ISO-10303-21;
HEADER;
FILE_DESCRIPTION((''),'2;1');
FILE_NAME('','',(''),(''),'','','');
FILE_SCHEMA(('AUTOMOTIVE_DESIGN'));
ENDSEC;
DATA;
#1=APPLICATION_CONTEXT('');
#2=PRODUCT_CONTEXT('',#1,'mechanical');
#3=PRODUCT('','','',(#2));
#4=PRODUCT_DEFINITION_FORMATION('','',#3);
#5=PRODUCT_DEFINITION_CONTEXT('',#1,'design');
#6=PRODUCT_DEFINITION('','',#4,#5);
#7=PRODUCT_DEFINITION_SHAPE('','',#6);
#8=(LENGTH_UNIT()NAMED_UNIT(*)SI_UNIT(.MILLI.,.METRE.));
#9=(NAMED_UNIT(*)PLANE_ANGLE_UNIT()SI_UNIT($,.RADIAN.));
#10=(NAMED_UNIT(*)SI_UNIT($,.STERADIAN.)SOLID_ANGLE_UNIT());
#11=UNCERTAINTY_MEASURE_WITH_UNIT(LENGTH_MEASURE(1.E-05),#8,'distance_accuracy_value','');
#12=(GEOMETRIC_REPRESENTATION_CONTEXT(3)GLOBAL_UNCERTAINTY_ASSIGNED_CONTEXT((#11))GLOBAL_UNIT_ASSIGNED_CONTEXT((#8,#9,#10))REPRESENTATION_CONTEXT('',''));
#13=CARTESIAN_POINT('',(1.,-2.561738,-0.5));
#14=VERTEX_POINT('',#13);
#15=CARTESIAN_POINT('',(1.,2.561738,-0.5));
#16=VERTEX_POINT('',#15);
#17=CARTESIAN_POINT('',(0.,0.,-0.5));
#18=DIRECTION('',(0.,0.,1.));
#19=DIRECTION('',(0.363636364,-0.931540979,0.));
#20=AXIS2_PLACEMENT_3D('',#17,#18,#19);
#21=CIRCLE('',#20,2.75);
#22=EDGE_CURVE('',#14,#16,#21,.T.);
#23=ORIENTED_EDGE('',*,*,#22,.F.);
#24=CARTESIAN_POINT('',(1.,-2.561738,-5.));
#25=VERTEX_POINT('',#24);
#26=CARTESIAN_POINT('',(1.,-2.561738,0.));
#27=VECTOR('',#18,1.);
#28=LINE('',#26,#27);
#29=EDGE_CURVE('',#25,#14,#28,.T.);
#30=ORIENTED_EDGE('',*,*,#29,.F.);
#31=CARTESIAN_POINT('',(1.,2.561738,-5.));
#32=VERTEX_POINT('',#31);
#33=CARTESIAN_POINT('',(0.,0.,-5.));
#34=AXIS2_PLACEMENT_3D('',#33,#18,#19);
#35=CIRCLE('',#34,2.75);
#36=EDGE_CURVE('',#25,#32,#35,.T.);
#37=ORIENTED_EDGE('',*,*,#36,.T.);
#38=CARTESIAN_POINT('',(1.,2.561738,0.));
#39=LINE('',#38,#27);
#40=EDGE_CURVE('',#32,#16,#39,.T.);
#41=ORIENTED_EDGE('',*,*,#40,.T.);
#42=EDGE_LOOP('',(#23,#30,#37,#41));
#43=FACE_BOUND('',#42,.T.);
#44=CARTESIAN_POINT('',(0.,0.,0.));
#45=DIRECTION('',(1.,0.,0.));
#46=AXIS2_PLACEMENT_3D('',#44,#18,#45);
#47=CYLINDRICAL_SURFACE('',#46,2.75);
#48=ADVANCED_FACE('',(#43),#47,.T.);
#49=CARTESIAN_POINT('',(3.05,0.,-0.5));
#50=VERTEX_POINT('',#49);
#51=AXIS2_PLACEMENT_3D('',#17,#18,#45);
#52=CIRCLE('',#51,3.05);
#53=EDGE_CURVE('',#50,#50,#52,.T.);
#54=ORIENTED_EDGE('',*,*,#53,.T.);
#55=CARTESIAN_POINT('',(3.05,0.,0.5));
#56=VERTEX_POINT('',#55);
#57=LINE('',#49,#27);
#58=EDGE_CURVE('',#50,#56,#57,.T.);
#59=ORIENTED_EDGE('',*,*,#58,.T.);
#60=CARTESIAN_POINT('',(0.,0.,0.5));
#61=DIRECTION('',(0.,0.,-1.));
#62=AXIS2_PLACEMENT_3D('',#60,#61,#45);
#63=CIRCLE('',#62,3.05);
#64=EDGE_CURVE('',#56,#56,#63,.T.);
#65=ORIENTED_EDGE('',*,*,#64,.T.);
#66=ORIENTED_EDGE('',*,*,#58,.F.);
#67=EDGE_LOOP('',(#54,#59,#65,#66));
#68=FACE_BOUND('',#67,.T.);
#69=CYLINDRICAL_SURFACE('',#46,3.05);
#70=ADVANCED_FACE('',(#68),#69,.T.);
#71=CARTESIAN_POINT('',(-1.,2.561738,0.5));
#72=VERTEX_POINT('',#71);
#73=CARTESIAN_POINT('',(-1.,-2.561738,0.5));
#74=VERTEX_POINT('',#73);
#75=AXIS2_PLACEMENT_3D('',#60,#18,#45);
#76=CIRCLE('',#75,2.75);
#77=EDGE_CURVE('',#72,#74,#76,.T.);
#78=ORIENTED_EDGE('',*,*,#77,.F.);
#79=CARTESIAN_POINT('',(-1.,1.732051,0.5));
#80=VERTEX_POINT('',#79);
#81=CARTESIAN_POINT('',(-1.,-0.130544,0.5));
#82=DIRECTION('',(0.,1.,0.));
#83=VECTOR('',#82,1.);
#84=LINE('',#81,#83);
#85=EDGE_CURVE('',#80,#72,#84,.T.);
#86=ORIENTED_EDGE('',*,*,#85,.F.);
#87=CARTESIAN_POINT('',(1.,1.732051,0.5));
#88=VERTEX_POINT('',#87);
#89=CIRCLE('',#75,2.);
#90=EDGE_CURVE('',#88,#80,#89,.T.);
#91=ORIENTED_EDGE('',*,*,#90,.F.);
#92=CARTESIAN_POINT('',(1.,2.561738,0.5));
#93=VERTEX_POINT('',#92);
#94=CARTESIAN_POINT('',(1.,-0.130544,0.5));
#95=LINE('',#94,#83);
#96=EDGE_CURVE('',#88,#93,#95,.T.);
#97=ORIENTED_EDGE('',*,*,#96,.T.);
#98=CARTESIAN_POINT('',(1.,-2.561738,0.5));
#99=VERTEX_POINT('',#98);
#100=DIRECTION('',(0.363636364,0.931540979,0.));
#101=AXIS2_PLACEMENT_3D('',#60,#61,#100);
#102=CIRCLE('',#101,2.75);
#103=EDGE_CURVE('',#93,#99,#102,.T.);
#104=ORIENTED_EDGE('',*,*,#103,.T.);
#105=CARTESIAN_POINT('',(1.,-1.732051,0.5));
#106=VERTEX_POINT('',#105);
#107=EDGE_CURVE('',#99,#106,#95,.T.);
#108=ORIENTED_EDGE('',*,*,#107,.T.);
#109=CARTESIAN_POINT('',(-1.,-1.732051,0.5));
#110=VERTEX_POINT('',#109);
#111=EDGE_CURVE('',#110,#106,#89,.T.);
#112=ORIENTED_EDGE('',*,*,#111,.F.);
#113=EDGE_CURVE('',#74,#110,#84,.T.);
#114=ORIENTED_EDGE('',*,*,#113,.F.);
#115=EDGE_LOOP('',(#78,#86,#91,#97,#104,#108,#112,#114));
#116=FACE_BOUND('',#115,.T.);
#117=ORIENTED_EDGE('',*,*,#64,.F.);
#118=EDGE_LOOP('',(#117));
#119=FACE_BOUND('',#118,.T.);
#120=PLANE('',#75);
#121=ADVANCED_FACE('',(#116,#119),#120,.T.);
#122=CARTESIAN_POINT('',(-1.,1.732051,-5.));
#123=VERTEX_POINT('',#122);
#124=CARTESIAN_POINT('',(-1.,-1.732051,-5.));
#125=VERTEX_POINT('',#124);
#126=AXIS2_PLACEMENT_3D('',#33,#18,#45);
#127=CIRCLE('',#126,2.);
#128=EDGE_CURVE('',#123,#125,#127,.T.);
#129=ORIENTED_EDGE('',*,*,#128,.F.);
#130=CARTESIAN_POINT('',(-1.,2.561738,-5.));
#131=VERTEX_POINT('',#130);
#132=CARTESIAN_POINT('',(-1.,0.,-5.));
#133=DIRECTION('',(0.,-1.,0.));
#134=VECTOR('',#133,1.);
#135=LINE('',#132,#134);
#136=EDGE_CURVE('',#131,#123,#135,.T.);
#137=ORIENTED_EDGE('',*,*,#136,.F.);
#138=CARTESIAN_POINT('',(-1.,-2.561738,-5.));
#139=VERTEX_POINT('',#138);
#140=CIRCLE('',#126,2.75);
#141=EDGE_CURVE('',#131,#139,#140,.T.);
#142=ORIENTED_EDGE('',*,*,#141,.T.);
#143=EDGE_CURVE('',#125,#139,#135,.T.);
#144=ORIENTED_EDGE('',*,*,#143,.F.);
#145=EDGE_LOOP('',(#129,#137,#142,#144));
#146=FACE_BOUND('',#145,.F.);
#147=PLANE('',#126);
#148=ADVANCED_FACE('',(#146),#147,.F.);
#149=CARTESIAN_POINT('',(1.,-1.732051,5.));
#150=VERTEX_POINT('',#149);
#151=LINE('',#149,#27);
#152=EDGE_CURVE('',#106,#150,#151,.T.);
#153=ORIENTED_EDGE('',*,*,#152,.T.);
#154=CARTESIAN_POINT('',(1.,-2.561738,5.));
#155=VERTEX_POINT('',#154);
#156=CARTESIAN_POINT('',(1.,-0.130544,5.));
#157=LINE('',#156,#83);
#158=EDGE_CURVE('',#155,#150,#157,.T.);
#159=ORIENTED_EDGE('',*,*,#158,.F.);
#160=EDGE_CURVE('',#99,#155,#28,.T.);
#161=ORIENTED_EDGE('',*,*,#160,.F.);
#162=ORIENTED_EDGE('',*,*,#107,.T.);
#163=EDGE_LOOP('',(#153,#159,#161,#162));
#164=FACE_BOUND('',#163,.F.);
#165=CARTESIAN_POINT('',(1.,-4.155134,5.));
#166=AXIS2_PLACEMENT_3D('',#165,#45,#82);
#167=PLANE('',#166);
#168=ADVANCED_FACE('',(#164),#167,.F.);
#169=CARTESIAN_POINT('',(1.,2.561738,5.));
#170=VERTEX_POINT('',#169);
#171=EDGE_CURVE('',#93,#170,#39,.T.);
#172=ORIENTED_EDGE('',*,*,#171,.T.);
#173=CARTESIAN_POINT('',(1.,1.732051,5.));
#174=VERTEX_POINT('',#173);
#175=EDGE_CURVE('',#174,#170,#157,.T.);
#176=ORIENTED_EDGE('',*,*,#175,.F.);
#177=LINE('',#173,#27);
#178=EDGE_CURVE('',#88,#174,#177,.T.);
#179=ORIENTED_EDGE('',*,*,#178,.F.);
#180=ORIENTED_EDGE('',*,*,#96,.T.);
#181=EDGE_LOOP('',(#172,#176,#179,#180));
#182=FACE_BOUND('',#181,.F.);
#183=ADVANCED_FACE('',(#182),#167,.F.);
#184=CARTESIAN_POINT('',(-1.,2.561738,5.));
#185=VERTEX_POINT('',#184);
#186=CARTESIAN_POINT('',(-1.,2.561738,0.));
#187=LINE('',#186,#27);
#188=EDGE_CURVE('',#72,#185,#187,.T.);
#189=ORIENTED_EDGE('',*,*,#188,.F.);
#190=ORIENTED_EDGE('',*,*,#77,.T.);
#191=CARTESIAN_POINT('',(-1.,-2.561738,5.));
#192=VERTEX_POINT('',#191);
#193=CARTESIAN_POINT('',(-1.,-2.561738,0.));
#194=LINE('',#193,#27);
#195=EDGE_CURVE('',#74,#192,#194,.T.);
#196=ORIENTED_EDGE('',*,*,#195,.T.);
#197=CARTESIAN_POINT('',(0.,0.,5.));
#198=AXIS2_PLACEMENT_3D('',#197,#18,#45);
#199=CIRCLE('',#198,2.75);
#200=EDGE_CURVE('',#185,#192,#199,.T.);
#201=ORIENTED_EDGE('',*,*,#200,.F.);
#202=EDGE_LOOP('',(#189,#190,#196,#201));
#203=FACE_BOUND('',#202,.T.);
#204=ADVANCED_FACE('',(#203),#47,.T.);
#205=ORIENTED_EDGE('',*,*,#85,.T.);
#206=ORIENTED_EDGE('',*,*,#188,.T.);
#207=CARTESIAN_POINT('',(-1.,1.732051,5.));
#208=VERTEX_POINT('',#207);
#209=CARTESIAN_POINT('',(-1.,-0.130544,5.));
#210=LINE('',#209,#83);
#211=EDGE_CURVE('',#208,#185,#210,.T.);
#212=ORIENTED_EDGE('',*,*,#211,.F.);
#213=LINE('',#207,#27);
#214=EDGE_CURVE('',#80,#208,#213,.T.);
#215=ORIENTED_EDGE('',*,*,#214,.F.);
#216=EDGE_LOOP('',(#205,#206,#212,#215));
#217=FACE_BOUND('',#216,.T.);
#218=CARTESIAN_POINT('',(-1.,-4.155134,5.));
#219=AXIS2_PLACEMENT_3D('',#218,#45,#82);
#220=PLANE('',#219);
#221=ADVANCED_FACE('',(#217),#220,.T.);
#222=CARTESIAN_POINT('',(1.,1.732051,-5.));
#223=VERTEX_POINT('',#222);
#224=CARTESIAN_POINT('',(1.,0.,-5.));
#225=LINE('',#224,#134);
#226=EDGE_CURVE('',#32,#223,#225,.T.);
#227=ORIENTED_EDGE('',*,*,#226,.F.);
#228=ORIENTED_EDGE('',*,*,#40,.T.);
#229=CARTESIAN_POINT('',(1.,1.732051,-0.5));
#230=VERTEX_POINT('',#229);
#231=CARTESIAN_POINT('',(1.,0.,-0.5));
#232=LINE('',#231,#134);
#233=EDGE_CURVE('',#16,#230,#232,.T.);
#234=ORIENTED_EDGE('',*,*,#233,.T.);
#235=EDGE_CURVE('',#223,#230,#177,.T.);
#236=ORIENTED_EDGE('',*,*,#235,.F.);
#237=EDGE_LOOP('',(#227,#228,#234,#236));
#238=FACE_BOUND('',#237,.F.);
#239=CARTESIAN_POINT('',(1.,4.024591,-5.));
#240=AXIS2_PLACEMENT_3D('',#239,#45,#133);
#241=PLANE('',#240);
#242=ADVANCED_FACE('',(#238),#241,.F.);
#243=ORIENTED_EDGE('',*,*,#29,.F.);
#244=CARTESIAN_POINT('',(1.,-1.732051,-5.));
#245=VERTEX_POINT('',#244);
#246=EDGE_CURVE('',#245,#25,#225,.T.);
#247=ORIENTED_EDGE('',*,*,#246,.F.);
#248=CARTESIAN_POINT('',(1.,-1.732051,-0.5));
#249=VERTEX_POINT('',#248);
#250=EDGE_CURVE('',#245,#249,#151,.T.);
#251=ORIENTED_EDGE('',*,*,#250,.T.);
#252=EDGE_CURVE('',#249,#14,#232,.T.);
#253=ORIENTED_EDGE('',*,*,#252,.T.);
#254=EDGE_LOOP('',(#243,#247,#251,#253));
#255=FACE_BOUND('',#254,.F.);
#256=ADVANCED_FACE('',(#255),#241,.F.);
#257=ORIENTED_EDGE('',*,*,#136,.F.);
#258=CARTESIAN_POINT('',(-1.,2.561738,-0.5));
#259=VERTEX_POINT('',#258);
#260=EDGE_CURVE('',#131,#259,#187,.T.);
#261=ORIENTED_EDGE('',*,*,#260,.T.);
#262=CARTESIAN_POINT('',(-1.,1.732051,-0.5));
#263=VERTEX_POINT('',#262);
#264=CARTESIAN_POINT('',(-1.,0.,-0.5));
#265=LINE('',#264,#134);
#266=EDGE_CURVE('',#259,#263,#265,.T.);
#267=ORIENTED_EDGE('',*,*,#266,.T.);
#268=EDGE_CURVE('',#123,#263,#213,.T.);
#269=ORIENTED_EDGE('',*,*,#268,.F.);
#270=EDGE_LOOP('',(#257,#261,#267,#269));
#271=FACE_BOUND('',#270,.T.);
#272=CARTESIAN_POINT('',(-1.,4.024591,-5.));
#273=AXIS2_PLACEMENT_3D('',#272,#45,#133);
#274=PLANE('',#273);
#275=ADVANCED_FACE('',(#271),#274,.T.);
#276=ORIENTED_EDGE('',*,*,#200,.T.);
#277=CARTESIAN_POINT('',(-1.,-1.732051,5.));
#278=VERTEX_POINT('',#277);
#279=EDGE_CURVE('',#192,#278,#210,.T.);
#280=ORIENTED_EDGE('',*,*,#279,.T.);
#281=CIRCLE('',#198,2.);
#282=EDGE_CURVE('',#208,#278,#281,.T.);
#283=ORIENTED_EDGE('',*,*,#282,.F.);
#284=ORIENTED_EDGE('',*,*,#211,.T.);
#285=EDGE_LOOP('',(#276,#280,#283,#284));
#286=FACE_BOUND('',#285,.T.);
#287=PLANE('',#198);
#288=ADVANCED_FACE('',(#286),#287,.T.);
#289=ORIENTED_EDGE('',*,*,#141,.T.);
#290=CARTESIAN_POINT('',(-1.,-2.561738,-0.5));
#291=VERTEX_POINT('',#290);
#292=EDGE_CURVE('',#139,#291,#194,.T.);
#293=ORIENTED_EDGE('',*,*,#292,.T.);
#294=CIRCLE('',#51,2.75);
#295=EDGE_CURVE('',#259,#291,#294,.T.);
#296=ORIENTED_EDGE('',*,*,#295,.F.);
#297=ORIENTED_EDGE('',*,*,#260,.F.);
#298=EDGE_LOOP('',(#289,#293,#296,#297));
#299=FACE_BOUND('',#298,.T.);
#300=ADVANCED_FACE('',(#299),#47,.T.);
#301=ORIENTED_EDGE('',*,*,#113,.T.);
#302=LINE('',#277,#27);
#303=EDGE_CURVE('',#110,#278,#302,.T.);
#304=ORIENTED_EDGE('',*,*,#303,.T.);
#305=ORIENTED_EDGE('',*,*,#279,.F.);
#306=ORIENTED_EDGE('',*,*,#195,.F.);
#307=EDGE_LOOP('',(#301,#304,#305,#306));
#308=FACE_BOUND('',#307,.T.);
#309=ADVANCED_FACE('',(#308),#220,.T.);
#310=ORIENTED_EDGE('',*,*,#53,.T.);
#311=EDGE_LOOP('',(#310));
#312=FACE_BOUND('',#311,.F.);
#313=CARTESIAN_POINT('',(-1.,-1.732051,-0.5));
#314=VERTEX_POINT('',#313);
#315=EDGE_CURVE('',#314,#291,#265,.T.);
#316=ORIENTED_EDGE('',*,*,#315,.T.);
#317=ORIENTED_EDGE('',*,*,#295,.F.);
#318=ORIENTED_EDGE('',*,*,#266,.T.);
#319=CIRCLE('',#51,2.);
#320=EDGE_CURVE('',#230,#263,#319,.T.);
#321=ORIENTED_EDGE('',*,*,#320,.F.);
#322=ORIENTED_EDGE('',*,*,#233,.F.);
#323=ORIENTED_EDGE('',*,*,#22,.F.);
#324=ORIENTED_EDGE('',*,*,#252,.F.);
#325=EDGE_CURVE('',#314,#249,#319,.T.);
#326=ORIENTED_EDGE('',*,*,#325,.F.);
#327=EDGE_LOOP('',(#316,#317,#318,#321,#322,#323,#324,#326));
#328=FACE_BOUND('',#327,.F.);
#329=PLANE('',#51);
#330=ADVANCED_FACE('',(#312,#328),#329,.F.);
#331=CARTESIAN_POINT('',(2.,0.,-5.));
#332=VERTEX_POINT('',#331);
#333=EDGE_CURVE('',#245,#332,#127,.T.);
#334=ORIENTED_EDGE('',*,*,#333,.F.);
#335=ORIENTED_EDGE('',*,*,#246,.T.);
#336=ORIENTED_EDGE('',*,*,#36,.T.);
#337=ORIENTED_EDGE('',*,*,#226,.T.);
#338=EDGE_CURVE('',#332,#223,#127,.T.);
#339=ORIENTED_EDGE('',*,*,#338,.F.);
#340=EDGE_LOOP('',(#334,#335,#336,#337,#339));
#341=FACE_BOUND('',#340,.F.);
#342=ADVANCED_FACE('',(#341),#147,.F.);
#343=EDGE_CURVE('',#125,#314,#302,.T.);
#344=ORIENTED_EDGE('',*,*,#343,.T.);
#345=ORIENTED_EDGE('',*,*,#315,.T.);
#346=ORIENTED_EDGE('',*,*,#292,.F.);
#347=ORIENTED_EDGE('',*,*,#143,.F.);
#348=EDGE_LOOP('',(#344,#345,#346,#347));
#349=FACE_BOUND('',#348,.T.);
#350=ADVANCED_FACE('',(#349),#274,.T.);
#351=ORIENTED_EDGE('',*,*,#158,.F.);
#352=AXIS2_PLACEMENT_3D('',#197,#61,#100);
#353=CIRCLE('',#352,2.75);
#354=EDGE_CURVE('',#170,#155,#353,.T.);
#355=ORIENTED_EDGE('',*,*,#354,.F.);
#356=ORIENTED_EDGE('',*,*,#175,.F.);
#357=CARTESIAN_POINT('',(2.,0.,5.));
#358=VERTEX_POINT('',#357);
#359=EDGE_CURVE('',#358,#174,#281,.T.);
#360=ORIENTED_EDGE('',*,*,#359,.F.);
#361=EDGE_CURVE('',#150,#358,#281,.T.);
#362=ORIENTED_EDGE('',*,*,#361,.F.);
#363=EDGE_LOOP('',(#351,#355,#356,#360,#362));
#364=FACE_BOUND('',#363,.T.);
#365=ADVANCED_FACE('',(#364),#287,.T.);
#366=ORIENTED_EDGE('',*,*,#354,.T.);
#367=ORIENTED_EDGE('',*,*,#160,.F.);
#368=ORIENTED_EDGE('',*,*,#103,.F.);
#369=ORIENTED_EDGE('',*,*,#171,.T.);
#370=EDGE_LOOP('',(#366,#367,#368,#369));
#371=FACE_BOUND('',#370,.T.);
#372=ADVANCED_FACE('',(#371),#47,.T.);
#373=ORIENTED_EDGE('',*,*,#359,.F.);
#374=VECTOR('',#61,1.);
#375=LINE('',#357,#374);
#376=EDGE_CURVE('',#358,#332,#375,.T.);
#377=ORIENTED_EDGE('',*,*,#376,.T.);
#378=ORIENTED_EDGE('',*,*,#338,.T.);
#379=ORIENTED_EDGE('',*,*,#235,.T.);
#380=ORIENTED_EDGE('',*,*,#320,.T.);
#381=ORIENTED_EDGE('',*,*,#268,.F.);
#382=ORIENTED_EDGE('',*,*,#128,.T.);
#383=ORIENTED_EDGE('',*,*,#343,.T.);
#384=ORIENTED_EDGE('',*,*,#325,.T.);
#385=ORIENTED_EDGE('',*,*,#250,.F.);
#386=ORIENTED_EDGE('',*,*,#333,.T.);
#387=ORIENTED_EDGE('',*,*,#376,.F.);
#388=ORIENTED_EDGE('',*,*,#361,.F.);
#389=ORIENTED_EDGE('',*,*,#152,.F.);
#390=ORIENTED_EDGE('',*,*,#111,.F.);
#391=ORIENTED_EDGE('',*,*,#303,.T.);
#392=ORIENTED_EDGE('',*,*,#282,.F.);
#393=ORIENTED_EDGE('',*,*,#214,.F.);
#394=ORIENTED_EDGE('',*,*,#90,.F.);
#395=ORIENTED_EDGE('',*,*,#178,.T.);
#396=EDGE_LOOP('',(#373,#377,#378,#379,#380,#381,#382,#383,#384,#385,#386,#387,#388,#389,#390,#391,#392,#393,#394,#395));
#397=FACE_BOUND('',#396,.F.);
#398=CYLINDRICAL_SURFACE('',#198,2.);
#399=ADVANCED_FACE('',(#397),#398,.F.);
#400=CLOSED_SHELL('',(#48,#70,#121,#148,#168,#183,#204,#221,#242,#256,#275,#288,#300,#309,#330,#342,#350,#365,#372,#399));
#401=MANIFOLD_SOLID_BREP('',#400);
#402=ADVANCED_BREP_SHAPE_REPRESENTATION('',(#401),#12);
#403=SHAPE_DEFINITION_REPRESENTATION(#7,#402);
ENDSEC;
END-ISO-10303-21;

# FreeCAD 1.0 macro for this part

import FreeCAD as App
import Part
import Sketcher
Q = App.Units.Quantity


def add_polygon(sketch, points):
    """Adds a closed chain of lines whose ends are joined by coincident constraints."""
    first, n = sketch.GeometryCount, len(points)
    for a, b in zip(points, points[1:] + points[:1]):
        sketch.addGeometry(Part.LineSegment(App.Vector(*a, 0), App.Vector(*b, 0)), False)
    for i in range(n):
        sketch.addConstraint(Sketcher.Constraint("Coincident", first + i, 2, first + (i + 1) % n, 1))

doc = App.newDocument("Part")
body = doc.addObject("PartDesign::Body", "Body")

sketch1 = body.newObject("Sketcher::SketchObject", "Sketch")
sketch1.AttachmentSupport = (doc.getObject("XY_Plane"), [""])
sketch1.MapMode = "FlatFace"
sketch1.addGeometry(Part.Circle(App.Vector(0, 0, 0), App.Vector(0, 0, 1), 2.75), False)
sketch1.addConstraint(Sketcher.Constraint("Coincident", 0, 3, -1, 1))
sketch1.addConstraint(Sketcher.Constraint("Diameter", 0, Q("5.5 mm")))
pad1 = body.newObject("PartDesign::Pad", "Pad")
pad1.Profile = sketch1
pad1.Length = 10
pad1.Midplane = True

sketch2 = body.newObject("Sketcher::SketchObject", "Sketch001")
sketch2.AttachmentSupport = (doc.getObject("XY_Plane"), [""])
sketch2.MapMode = "FlatFace"
sketch2.addGeometry(Part.Circle(App.Vector(0, 0, 0), App.Vector(0, 0, 1), 3.05), False)
sketch2.addConstraint(Sketcher.Constraint("Coincident", 0, 3, -1, 1))
sketch2.addConstraint(Sketcher.Constraint("Diameter", 0, Q("6.1 mm")))
pad2 = body.newObject("PartDesign::Pad", "Pad001")
pad2.Profile = sketch2
pad2.Length = 1
pad2.Midplane = True

sketch3 = body.newObject("Sketcher::SketchObject", "Sketch002")
sketch3.AttachmentSupport = (doc.getObject("XY_Plane"), [""])
sketch3.MapMode = "FlatFace"
sketch3.AttachmentOffset = App.Placement(App.Vector(0, 0, 5), App.Rotation())
sketch3.addGeometry(Part.Circle(App.Vector(0, 0, 0), App.Vector(0, 0, 1), 2), False)
sketch3.addConstraint(Sketcher.Constraint("Coincident", 0, 3, -1, 1))
sketch3.addConstraint(Sketcher.Constraint("Diameter", 0, Q("4 mm")))
pocket1 = body.newObject("PartDesign::Pocket", "Pocket")
pocket1.Profile = sketch3
pocket1.Length = 25

sketch4 = body.newObject("Sketcher::SketchObject", "Sketch003")
sketch4.AttachmentSupport = (doc.getObject("XY_Plane"), [""])
sketch4.MapMode = "FlatFace"
sketch4.AttachmentOffset = App.Placement(App.Vector(0, 0, 5), App.Rotation())
add_polygon(sketch4, [(-1, 3.894046), (-1, -4.155134), (1, -4.155134), (1, 3.894046)])
sketch4.addConstraint(Sketcher.Constraint("Vertical", 0))
sketch4.addConstraint(Sketcher.Constraint("Horizontal", 1))
sketch4.addConstraint(Sketcher.Constraint("Vertical", 2))
sketch4.addConstraint(Sketcher.Constraint("Horizontal", 3))
sketch4.addConstraint(Sketcher.Constraint("DistanceX", 1, 1, 1, 2, Q("2 mm")))
sketch4.addConstraint(Sketcher.Constraint("DistanceX", 0, 2, -1, 1, Q("1 mm")))
sketch4.addConstraint(Sketcher.Constraint("DistanceY", 0, 2, 0, 1, Q("8.049181 mm")))
sketch4.addConstraint(Sketcher.Constraint("DistanceY", 0, 2, -1, 1, Q("4.155134 mm")))
pocket2 = body.newObject("PartDesign::Pocket", "Pocket001")
pocket2.Profile = sketch4
pocket2.Length = 4.5

sketch5 = body.newObject("Sketcher::SketchObject", "Sketch004")
sketch5.AttachmentSupport = (doc.getObject("XY_Plane"), [""])
sketch5.MapMode = "FlatFace"
sketch5.AttachmentOffset = App.Placement(App.Vector(0, 0, -5), App.Rotation())
add_polygon(sketch5, [(-1, -4.024591), (-1, 4.024591), (1, 4.024591), (1, -4.024591)])
sketch5.addConstraint(Sketcher.Constraint("Vertical", 0))
sketch5.addConstraint(Sketcher.Constraint("Horizontal", 1))
sketch5.addConstraint(Sketcher.Constraint("Vertical", 2))
sketch5.addConstraint(Sketcher.Constraint("Horizontal", 3))
sketch5.addConstraint(Sketcher.Constraint("Symmetric", 0, 2, 2, 2, -1, 1))
sketch5.addConstraint(Sketcher.Constraint("DistanceX", 1, 1, 1, 2, Q("2 mm")))
sketch5.addConstraint(Sketcher.Constraint("DistanceY", 0, 1, 0, 2, Q("8.049182 mm")))
pocket3 = body.newObject("PartDesign::Pocket", "Pocket002")
pocket3.Profile = sketch5
pocket3.Length = 4.5
pocket3.Reversed = True

doc.recompute()
